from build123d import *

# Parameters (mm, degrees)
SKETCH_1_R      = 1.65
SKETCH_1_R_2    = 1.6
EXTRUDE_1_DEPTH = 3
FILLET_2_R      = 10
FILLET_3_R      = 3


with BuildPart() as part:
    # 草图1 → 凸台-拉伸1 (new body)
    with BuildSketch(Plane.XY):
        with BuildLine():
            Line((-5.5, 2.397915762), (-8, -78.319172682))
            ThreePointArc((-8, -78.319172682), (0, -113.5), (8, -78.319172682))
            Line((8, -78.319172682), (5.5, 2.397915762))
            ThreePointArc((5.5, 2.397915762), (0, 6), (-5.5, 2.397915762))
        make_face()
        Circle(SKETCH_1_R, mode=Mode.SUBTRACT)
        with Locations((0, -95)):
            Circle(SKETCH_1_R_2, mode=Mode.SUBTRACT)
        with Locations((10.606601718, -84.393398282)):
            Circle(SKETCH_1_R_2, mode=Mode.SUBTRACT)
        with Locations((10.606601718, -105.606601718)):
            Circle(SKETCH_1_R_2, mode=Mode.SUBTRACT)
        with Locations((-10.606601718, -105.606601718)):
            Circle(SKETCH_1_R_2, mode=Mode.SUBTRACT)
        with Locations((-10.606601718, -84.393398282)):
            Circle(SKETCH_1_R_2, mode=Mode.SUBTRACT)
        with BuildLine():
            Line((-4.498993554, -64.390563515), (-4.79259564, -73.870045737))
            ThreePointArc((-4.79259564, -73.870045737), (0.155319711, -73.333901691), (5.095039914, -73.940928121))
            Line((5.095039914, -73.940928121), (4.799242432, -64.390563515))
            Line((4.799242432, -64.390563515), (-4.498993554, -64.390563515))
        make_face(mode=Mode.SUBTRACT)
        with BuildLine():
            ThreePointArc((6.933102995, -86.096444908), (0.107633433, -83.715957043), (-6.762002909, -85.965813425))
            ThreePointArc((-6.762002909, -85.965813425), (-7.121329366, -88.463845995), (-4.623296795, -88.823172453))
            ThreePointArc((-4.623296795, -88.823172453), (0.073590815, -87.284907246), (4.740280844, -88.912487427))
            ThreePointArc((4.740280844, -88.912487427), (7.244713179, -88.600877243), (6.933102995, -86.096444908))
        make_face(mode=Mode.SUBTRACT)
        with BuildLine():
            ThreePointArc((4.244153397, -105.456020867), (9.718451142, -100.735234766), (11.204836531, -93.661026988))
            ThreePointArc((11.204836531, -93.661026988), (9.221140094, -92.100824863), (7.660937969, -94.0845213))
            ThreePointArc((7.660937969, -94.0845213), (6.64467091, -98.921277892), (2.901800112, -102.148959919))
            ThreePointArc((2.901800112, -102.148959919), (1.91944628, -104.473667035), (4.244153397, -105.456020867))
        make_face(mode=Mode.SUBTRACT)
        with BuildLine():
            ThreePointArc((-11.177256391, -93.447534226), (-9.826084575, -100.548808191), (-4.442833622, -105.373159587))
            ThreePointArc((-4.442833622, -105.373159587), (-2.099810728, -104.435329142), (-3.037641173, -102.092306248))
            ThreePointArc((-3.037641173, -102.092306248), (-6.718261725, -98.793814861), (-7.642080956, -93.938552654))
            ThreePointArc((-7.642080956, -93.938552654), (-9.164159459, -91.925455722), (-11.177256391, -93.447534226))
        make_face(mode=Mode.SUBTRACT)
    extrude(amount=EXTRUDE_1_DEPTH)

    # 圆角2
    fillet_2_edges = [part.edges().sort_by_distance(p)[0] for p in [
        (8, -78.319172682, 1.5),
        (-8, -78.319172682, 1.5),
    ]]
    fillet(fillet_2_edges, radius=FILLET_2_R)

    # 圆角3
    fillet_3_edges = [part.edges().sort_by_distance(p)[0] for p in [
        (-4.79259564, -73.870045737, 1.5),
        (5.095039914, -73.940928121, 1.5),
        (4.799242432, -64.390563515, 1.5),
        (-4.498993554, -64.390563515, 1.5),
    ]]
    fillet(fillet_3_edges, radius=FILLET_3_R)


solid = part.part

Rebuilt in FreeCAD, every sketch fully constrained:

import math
import FreeCAD as App
import Part
import Sketcher

V = App.Vector
Q = App.Units.Quantity


def edges_at(feature, points):
    """Names of the edges that pass closest to the given points."""
    edges = feature.Shape.Edges
    near = lambda p: min(range(len(edges)), key=lambda i: edges[i].distToShape(Part.Vertex(*p))[0])
    return sorted({f"Edge{near(p) + 1}" for p in points})

doc = App.newDocument("Part")
params = doc.addObject("Spreadsheet::Sheet", "Params")
for row, (alias, value) in enumerate([
    ("sketch1_radius", "6 mm"),
    ("sketch1_diameter", "3.2 mm"),
    ("sketch1_diameter2", "3.3 mm"),
    ("sketch1_radius2", "18.5 mm"),
    ("pad1_length", "3 mm"),
    ("fillet_radius", "10 mm"),
    ("fillet2_radius", "3 mm"),
], start=1):
    params.set(f"A{row}", alias)
    params.set(f"B{row}", "=" + value)
    params.setAlias(f"B{row}", alias)

body = doc.addObject("PartDesign::Body", "Body")

sketch1 = body.newObject("Sketcher::SketchObject", "Sketch")
sketch1.AttachmentSupport = (doc.getObject("XY_Plane"), [""])
sketch1.MapMode = "FlatFace"
sketch1.addGeometry([
    Part.LineSegment(V(-5.5, 2.4, 0), V(-8, -78.3, 0)),
    Part.ArcOfCircle(Part.Circle(V(0, -95, 0), V(0, 0, 1), 18.5), math.radians(116), math.radians(424)),
    Part.LineSegment(V(8, -78.3, 0), V(5.5, 2.4, 0)),
    Part.ArcOfCircle(Part.Circle(V(0, 0, 0), V(0, 0, 1), 6), math.radians(24), math.radians(156)),
    Part.Circle(V(-10.6, -105.6, 0), V(0, 0, 1), 1.6),
    Part.ArcOfCircle(Part.Circle(V(0, -95, 0), V(0, 0, 1), 11.3), math.radians(172), math.radians(247)),
    Part.ArcOfCircle(Part.Circle(V(-9.4, -93.7, 0), V(0, 0, 1), 1.8), math.radians(-8), math.radians(172)),
    Part.ArcOfCircle(Part.Circle(V(0, -95, 0), V(0, 0, 1), 7.7), math.radians(172), math.radians(247)),
    Part.ArcOfCircle(Part.Circle(V(-3.7, -103.7, 0), V(0, 0, 1), 1.8), math.radians(-113), math.radians(67)),
    Part.Circle(V(-10.6, -84.4, 0), V(0, 0, 1), 1.6),
    Part.Circle(V(0, -95, 0), V(0, 0, 1), 1.6),
    Part.ArcOfCircle(Part.Circle(V(0, -95, 0), V(0, 0, 1), 11.3), math.radians(52), math.radians(127)),
    Part.ArcOfCircle(Part.Circle(V(5.8, -87.5, 0), V(0, 0, 1), 1.8), math.radians(-128), math.radians(52)),
    Part.ArcOfCircle(Part.Circle(V(0, -95, 0), V(0, 0, 1), 7.7), math.radians(52), math.radians(127)),
    Part.ArcOfCircle(Part.Circle(V(-5.7, -87.4, 0), V(0, 0, 1), 1.8), math.radians(127), math.radians(307)),
    Part.ArcOfCircle(Part.Circle(V(0, -95, 0), V(0, 0, 1), 11.3), math.radians(-68), math.radians(7)),
    Part.ArcOfCircle(Part.Circle(V(3.6, -103.8, 0), V(0, 0, 1), 1.8), math.radians(112), math.radians(292)),
    Part.ArcOfCircle(Part.Circle(V(0, -95, 0), V(0, 0, 1), 7.7), math.radians(-68), math.radians(7)),
    Part.ArcOfCircle(Part.Circle(V(9.4, -93.9, 0), V(0, 0, 1), 1.8), math.radians(7), math.radians(187)),
    Part.Circle(V(10.6, -105.6, 0), V(0, 0, 1), 1.6),
    Part.Circle(V(10.6, -84.4, 0), V(0, 0, 1), 1.6),
    Part.LineSegment(V(-4.8, -73.9, 0), V(-4.5, -64.4, 0)),
    Part.LineSegment(V(-4.5, -64.4, 0), V(4.8, -64.4, 0)),
    Part.LineSegment(V(4.8, -64.4, 0), V(5.1, -73.9, 0)),
    Part.ArcOfCircle(Part.Circle(V(0, -95, 0), V(0, 0, 1), 21.7), math.radians(76), math.radians(103)),
    Part.Circle(V(0, 0, 0), V(0, 0, 1), 1.6),
], False)
sketch1.addConstraint([
    Sketcher.Constraint("Coincident", 0, 2, 1, 1),
    Sketcher.Constraint("Coincident", 1, 2, 2, 1),
    Sketcher.Constraint("Coincident", 2, 2, 3, 1),
    Sketcher.Constraint("Coincident", 3, 2, 0, 1),
    Sketcher.Constraint("Tangent", 5, 1, 6, 2),
    Sketcher.Constraint("Tangent", 6, 1, 7, 1),
    Sketcher.Constraint("Tangent", 7, 2, 8, 2),
    Sketcher.Constraint("Tangent", 8, 1, 5, 2),
    Sketcher.Constraint("Tangent", 11, 1, 12, 2),
    Sketcher.Constraint("Tangent", 12, 1, 13, 1),
    Sketcher.Constraint("Tangent", 13, 2, 14, 2),
    Sketcher.Constraint("Tangent", 14, 1, 11, 2),
    Sketcher.Constraint("Tangent", 15, 1, 16, 2),
    Sketcher.Constraint("Tangent", 16, 1, 17, 1),
    Sketcher.Constraint("Tangent", 17, 2, 18, 2),
    Sketcher.Constraint("Tangent", 18, 1, 15, 2),
    Sketcher.Constraint("Coincident", 21, 2, 22, 1),
    Sketcher.Constraint("Coincident", 22, 2, 23, 1),
    Sketcher.Constraint("Coincident", 23, 2, 24, 1),
    Sketcher.Constraint("Coincident", 24, 2, 21, 1),
    Sketcher.Constraint("Horizontal", 22),
    Sketcher.Constraint("Coincident", 3, 3, -1, 1),
    Sketcher.Constraint("Coincident", 25, 3, -1, 1),
    Sketcher.Constraint("Coincident", 5, 3, 1, 3),
    Sketcher.Constraint("Coincident", 7, 3, 1, 3),
    Sketcher.Constraint("Coincident", 10, 3, 1, 3),
    Sketcher.Constraint("Coincident", 11, 3, 1, 3),
    Sketcher.Constraint("Coincident", 13, 3, 1, 3),
    Sketcher.Constraint("Coincident", 15, 3, 1, 3),
    Sketcher.Constraint("Coincident", 17, 3, 1, 3),
    Sketcher.Constraint("Coincident", 24, 3, 1, 3),
    Sketcher.Constraint("Equal", 4, 9),
    Sketcher.Constraint("Equal", 9, 10),
    Sketcher.Constraint("Equal", 5, 11),
    Sketcher.Constraint("Equal", 8, 12),
    Sketcher.Constraint("Equal", 11, 15),
    Sketcher.Constraint("Equal", 14, 16),
    Sketcher.Constraint("Equal", 10, 19),
    Sketcher.Constraint("Equal", 19, 20),
    Sketcher.Constraint("Symmetric", 4, 3, 19, 3, -2),
    Sketcher.Constraint("Symmetric", 9, 3, 20, 3, -2),
    Sketcher.Constraint("Symmetric", 0, 2, 1, 2, -2),
    Sketcher.Constraint("Parallel", 0, 21),
    Sketcher.Constraint("Parallel", 2, 23),
    Sketcher.Constraint("Horizontal", 2, 2, 3, 2),
    Sketcher.Constraint("Vertical", 4, 3, 9, 3),
    Sketcher.Constraint("Radius", 3, Q("6 mm")),
    Sketcher.Constraint("Diameter", 4, Q("3.2 mm")),
    Sketcher.Constraint("Diameter", 25, Q("3.3 mm")),
    Sketcher.Constraint("Radius", 1, Q("18.5 mm")),
    Sketcher.Constraint("DistanceY", 1, 3, -1, 1, Q("95 mm")),
    Sketcher.Constraint("DistanceX", 0, 2, -1, 1, Q("8 mm")),
    Sketcher.Constraint("DistanceX", 3, 2, 2, 2, Q("11 mm")),
    Sketcher.Constraint("Radius", 5, Q("11.284556 mm")),
    Sketcher.Constraint("Radius", 6, Q("1.784556 mm")),
    Sketcher.Constraint("Radius", 24, Q("21.666655 mm")),
    Sketcher.Constraint("DistanceX", 4, 3, -1, 1, Q("10.606602 mm")),
    Sketcher.Constraint("DistanceY", 4, 3, -1, 1, Q("105.606602 mm")),
    Sketcher.Constraint("DistanceY", 9, 3, -1, 1, Q("84.393398 mm")),
    Sketcher.Constraint("DistanceX", -1, 1, 16, 1, Q("2.9018 mm")),
    Sketcher.Constraint("DistanceY", 18, 3, 1, 2, Q("15.553601 mm")),
    Sketcher.Constraint("DistanceX", 11, 1, 20, 3, Q("3.673499 mm")),
    Sketcher.Constraint("DistanceX", 9, 3, 14, 1, Q("3.844599 mm")),
    Sketcher.Constraint("DistanceX", 22, 1, 22, 2, Q("9.298236 mm")),
    Sketcher.Constraint("DistanceX", 6, 3, -1, 1, Q("9.409669 mm")),
    Sketcher.Constraint("DistanceX", 7, 2, -1, 1, Q("3.037641 mm")),
    Sketcher.Constraint("DistanceX", -1, 1, 23, 2, Q("5.09504 mm")),
    Sketcher.Constraint("DistanceY", 0, 2, 21, 2, Q("13.928609 mm")),
])
sketch1.setExpression("Constraints[46]", "Params.sketch1_radius")
sketch1.setExpression("Constraints[47]", "Params.sketch1_diameter")
sketch1.setExpression("Constraints[48]", "Params.sketch1_diameter2")
sketch1.setExpression("Constraints[49]", "Params.sketch1_radius2")
pad1 = body.newObject("PartDesign::Pad", "Pad")
pad1.Profile = sketch1
pad1.setExpression("Length", "Params.pad1_length")
doc.recompute()

fillet = body.newObject("PartDesign::Fillet", "Fillet")
fillet.Base = (pad1, edges_at(pad1, [(8, -78.319, 1.5), (-8, -78.319, 1.5)]))
fillet.setExpression("Radius", "Params.fillet_radius")
doc.recompute()

fillet2 = body.newObject("PartDesign::Fillet", "Fillet001")
fillet2.Base = (fillet, edges_at(fillet, [
    (-4.793, -73.87, 1.5),
    (5.095, -73.941, 1.5),
    (4.799, -64.391, 1.5),
    (-4.499, -64.391, 1.5),
]))
fillet2.setExpression("Radius", "Params.fillet2_radius")

doc.recompute()
